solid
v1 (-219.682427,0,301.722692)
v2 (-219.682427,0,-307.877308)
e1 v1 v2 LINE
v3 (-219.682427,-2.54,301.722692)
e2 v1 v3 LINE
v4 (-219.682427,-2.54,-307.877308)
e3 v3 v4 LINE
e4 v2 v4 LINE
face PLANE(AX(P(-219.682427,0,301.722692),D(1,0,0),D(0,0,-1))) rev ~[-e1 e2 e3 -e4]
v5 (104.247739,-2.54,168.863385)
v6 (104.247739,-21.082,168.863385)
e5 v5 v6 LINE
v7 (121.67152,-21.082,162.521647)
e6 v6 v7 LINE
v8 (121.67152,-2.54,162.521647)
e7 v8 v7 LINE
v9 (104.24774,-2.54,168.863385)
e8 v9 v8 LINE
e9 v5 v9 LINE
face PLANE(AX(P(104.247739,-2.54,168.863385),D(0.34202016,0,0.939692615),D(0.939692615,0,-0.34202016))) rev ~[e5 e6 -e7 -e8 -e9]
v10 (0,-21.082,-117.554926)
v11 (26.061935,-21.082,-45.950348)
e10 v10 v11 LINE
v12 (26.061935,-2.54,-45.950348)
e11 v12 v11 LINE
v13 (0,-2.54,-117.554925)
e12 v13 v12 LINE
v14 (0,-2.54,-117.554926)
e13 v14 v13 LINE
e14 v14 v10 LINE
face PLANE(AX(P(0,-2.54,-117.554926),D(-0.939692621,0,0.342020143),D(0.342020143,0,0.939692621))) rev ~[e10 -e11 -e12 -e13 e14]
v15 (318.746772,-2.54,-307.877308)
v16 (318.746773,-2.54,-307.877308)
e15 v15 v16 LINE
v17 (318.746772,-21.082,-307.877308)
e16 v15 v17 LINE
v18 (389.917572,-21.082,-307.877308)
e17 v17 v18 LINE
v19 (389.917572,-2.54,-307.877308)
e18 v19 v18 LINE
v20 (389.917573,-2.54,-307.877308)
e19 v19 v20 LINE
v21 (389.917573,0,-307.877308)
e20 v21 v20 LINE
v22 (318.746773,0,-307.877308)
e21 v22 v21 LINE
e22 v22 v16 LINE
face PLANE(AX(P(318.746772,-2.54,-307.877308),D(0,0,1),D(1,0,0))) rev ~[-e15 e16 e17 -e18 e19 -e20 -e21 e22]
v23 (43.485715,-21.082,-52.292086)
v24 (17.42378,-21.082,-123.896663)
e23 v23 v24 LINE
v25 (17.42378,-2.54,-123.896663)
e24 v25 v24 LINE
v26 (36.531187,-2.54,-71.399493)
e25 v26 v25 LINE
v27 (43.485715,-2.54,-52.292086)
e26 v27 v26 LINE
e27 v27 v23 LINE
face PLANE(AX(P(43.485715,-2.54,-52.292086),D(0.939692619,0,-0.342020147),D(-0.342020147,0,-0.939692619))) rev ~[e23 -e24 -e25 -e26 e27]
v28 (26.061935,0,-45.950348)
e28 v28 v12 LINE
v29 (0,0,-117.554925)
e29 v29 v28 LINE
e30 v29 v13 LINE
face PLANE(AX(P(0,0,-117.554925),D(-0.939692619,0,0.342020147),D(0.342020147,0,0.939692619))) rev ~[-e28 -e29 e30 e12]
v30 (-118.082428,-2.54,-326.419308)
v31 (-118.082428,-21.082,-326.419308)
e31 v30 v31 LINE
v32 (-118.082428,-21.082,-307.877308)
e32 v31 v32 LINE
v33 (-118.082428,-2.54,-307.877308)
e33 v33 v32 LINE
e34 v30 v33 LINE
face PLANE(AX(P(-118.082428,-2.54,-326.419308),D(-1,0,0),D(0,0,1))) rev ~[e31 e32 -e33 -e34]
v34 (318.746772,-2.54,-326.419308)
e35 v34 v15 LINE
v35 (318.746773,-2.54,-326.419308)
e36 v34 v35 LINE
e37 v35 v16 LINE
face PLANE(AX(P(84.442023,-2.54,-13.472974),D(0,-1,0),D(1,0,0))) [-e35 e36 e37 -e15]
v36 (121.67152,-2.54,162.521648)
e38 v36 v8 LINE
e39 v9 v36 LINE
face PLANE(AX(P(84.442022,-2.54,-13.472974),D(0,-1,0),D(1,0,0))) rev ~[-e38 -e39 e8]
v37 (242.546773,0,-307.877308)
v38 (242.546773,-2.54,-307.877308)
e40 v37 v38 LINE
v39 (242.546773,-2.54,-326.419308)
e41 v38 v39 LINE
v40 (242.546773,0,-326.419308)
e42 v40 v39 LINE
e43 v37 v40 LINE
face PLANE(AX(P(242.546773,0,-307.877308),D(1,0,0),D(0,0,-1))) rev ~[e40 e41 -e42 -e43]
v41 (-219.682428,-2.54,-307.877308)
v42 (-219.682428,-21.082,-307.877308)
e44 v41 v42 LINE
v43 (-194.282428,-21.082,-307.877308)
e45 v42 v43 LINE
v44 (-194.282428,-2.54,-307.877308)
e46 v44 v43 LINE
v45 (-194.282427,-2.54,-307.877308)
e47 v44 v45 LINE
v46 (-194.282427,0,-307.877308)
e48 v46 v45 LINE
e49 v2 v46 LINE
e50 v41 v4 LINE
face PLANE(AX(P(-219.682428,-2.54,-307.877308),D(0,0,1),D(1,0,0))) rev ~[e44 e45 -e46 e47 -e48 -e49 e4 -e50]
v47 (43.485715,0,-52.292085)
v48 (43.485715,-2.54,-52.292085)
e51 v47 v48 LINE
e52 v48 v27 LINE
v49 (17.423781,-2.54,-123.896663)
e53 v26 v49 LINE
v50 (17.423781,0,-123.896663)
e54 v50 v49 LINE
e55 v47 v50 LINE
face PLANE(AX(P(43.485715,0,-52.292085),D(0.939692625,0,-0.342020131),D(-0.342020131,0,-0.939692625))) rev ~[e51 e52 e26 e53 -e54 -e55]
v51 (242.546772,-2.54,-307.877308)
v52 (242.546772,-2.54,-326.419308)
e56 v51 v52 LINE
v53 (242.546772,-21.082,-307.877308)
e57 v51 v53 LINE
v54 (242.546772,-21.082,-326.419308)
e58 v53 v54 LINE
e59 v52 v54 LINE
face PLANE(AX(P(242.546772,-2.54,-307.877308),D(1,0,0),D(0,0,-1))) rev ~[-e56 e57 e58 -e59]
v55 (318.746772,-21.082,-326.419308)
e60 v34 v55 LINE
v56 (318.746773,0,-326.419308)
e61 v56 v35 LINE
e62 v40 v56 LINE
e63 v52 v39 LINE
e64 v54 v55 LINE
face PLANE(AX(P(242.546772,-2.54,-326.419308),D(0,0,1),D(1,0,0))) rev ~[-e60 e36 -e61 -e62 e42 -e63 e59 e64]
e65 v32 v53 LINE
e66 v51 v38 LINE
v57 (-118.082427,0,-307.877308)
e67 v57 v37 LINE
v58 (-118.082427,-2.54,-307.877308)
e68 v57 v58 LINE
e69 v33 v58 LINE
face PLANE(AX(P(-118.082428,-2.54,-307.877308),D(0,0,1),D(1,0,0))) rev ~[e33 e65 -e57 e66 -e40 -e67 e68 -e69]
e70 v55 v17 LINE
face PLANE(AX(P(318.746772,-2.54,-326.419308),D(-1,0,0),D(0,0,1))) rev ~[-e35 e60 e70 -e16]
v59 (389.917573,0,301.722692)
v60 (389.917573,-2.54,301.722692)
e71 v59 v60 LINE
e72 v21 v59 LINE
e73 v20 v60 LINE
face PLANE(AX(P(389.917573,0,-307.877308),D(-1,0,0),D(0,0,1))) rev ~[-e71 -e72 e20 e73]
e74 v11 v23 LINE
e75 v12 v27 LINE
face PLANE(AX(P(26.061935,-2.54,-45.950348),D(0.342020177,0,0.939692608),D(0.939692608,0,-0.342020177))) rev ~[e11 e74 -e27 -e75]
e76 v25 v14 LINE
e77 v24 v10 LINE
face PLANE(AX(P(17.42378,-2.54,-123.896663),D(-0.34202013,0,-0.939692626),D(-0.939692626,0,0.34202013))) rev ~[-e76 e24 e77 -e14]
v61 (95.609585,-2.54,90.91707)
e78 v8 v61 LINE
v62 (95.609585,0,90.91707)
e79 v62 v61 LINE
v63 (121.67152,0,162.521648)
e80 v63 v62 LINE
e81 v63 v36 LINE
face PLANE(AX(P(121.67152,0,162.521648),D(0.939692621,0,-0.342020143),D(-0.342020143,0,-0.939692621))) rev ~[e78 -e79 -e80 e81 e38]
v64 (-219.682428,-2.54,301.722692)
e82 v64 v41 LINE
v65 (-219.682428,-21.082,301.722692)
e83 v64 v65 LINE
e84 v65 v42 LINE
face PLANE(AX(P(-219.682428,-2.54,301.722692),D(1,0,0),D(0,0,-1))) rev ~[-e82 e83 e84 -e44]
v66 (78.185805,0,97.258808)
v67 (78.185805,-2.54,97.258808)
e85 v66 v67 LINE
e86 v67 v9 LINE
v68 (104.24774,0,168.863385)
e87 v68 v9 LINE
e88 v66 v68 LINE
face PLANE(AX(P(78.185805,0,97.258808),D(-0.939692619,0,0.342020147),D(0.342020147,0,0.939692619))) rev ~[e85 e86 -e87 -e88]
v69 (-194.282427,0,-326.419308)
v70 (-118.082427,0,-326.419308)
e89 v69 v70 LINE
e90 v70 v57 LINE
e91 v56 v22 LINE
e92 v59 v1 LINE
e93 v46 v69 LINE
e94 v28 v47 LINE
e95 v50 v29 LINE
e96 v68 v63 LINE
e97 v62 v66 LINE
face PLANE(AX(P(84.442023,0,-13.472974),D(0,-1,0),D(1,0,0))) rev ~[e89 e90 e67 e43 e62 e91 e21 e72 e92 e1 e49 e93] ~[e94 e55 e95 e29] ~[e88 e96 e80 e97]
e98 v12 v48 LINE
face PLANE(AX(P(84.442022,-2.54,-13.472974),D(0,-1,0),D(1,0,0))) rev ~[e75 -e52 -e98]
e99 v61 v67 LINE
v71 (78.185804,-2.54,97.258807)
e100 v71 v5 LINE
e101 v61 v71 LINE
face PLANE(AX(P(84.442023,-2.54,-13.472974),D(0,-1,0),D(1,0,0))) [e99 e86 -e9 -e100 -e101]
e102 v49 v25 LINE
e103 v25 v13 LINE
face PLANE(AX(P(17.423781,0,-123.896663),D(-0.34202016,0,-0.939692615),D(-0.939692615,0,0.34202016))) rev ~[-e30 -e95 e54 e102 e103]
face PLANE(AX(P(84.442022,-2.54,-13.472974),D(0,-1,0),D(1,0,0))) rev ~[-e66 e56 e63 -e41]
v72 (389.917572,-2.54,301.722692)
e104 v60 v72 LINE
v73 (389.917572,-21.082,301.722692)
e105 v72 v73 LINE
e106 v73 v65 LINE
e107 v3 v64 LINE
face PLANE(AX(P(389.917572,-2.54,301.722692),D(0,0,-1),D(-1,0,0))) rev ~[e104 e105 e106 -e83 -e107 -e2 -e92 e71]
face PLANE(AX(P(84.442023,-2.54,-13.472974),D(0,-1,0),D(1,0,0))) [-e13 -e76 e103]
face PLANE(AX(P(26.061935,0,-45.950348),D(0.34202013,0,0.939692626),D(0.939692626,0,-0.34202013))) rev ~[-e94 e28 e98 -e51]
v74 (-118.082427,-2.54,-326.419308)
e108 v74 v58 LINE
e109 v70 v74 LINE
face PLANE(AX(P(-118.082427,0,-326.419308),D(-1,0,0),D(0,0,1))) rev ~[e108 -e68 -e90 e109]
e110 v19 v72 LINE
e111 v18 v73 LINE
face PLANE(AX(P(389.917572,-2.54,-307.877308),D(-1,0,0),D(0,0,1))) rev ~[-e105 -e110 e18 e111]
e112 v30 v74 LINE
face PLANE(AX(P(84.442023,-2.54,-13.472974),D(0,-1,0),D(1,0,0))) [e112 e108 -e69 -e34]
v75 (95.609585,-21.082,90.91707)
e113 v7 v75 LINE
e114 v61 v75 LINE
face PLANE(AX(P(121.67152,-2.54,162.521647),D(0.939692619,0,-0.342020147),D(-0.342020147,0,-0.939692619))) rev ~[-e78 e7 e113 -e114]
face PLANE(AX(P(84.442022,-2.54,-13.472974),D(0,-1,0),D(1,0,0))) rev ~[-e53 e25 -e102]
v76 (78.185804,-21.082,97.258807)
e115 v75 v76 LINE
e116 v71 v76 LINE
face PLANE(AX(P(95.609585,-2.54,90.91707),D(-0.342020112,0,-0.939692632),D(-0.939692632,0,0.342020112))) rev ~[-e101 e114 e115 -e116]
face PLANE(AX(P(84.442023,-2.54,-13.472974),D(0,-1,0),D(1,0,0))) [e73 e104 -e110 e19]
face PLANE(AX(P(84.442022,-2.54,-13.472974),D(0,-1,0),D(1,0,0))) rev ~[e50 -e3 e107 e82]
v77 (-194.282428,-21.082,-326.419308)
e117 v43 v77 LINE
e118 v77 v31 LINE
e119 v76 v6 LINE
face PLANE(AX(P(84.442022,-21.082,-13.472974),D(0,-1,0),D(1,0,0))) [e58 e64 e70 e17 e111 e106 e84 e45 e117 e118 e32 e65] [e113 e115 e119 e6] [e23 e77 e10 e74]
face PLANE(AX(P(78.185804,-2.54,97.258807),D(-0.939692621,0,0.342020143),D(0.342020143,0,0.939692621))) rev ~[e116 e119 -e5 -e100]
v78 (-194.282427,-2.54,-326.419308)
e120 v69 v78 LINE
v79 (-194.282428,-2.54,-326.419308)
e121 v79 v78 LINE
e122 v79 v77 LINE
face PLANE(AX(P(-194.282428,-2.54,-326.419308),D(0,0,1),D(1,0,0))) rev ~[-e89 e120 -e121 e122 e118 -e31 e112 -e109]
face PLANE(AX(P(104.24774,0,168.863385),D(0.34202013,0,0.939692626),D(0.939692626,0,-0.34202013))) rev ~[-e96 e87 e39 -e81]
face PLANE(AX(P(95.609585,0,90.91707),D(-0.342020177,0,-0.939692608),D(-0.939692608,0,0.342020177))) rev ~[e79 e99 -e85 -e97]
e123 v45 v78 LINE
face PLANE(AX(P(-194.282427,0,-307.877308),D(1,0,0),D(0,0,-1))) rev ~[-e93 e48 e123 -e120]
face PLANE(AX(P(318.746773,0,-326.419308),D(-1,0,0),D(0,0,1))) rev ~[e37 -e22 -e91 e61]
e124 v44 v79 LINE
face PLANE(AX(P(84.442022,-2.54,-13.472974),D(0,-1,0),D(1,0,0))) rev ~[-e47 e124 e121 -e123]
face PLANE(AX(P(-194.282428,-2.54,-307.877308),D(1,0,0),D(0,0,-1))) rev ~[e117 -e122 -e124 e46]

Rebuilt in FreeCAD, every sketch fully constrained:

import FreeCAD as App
import Part
import Sketcher
from FreeCAD import Vector
Q = App.Units.Quantity


def add_polygon(sketch, points):
    """Adds a closed chain of lines whose ends are joined by coincident constraints."""
    first, n = sketch.GeometryCount, len(points)
    for a, b in zip(points, points[1:] + points[:1]):
        sketch.addGeometry(Part.LineSegment(App.Vector(*a, 0), App.Vector(*b, 0)), False)
    for i in range(n):
        sketch.addConstraint(Sketcher.Constraint("Coincident", first + i, 2, first + (i + 1) % n, 1))

doc = App.newDocument("Part")
params = doc.addObject("Spreadsheet::Sheet", "Params")
for row, (alias, value) in enumerate([
    ("sketch1_width", "24 in"),
    ("sketch1_width2", "1 in"),
    ("sketch1_width3", "3 in"),
    ("sketch1_length", "3 in"),
    ("sketch1_height", "0.73 in"),
    ("pad1_length", "0.1 in"),
    ("sketch2_width", "24 in"),
    ("sketch2_width2", "1 in"),
    ("sketch2_width3", "3 in"),
    ("sketch2_length", "3 in"),
    ("sketch2_height", "0.73 in"),
    ("pad2_length", "0.73 in"),
], start=1):
    params.set(f"A{row}", alias)
    params.set(f"B{row}", "=" + value)
    params.setAlias(f"B{row}", alias)

body = doc.addObject("PartDesign::Body", "Body")

sketch1 = body.newObject("Sketcher::SketchObject", "Sketch")
sketch1.AttachmentSupport = (doc.getObject("XZ_Plane"), [""])
sketch1.MapMode = "FlatFace"
add_polygon(sketch1, [(389.917573, 301.722692), (-219.682427, 301.722692), (-219.682427, -307.877308), (-194.282427, -307.877308), (-194.282427, -326.419308), (-118.082427, -326.419308), (-118.082427, -307.877308), (242.546773, -307.877308), (242.546773, -326.419308), (318.746773, -326.419308), (318.746773, -307.877308), (389.917573, -307.877308)])
add_polygon(sketch1, [(17.423781, -123.896663), (0, -117.554925), (26.061935, -45.950348), (43.485715, -52.292085)])
add_polygon(sketch1, [(121.67152, 162.521648), (95.609585, 90.91707), (78.185805, 97.258808), (104.24774, 168.863385)])
sketch1.addConstraint([
    Sketcher.Constraint("Horizontal", 0),
    Sketcher.Constraint("Vertical", 1),
    Sketcher.Constraint("Horizontal", 2),
    Sketcher.Constraint("Vertical", 3),
    Sketcher.Constraint("Horizontal", 4),
    Sketcher.Constraint("Vertical", 5),
    Sketcher.Constraint("Horizontal", 6),
    Sketcher.Constraint("Vertical", 7),
    Sketcher.Constraint("Horizontal", 8),
    Sketcher.Constraint("Vertical", 9),
    Sketcher.Constraint("Horizontal", 10),
    Sketcher.Constraint("Vertical", 11),
    Sketcher.Constraint("PointOnObject", 12, 2, -2),
    Sketcher.Constraint("Perpendicular", 12, 13),
    Sketcher.Constraint("Perpendicular", 13, 14),
    Sketcher.Constraint("Perpendicular", 14, 15),
    Sketcher.Constraint("Parallel", 15, 16),
    Sketcher.Constraint("Perpendicular", 16, 17),
    Sketcher.Constraint("Perpendicular", 17, 18),
    Sketcher.Constraint("Perpendicular", 18, 19),
    Sketcher.Constraint("Horizontal", 2, 2, 5, 2),
    Sketcher.Constraint("Horizontal", 4, 2, 7, 2),
    Sketcher.Constraint("Horizontal", 6, 2, 9, 2),
    Sketcher.Constraint("Equal", 4, 8),
    Sketcher.Constraint("Equal", 0, 1),
    Sketcher.Constraint("Equal", 15, 16),
    Sketcher.Constraint("Equal", 14, 17),
    Sketcher.Constraint("DistanceX", 0, 2, 0, 1, Q("24 in")),
    Sketcher.Constraint("DistanceX", 2, 1, 2, 2, Q("1 in")),
    Sketcher.Constraint("DistanceX", 4, 1, 4, 2, Q("3 in")),
    Sketcher.Constraint("Distance", 13, Q("3 in")),
    Sketcher.Constraint("Angle", 12, Q("159.999999 deg")),
    Sketcher.Constraint("DistanceY", 3, 2, 3, 1, Q("0.73 in")),
    Sketcher.Constraint("Distance", 12, Q("0.73 in")),
    Sketcher.Constraint("DistanceX", 6, 1, 6, 2, Q("14.198 in")),
    Sketcher.Constraint("DistanceY", -1, 1, 0, 2, 301.722692),
    Sketcher.Constraint("DistanceY", -1, 1, 16, 2, 90.91707),
    Sketcher.Constraint("DistanceX", -1, 1, 18, 2, 104.24774),
    Sketcher.Constraint("DistanceX", 5, 2, 13, 2, 144.144362),
    Sketcher.Constraint("DistanceY", 5, 2, 13, 2, 261.92696),
])
sketch1.setExpression("Constraints[47]", "Params.sketch1_width")
sketch1.setExpression("Constraints[48]", "Params.sketch1_width2")
sketch1.setExpression("Constraints[49]", "Params.sketch1_width3")
sketch1.setExpression("Constraints[50]", "Params.sketch1_length")
sketch1.setExpression("Constraints[52]", "Params.sketch1_height")
pad1 = body.newObject("PartDesign::Pad", "Pad")
pad1.Profile = sketch1
pad1.setExpression("Length", "Params.pad1_length")

sketch2 = body.newObject("Sketcher::SketchObject", "Sketch001")
sketch2.AttachmentSupport = (doc.getObject("XZ_Plane"), [""])
sketch2.MapMode = "FlatFace"
sketch2.AttachmentOffset = App.Placement(Vector(0, 0, 0.1 * 25.4), App.Rotation())
add_polygon(sketch2, [(389.917572, 301.722692), (-219.682428, 301.722692), (-219.682428, -307.877308), (-194.282428, -307.877308), (-194.282428, -326.419308), (-118.082428, -326.419308), (-118.082428, -307.877308), (242.546772, -307.877308), (242.546772, -326.419308), (318.746772, -326.419308), (318.746772, -307.877308), (389.917572, -307.877308)])
add_polygon(sketch2, [(43.485715, -52.292086), (17.42378, -123.896663), (0, -117.554926), (26.061935, -45.950348)])
add_polygon(sketch2, [(104.247739, 168.863385), (121.67152, 162.521647), (95.609585, 90.91707), (78.185804, 97.258807)])
sketch2.addConstraint([
    Sketcher.Constraint("Horizontal", 0),
    Sketcher.Constraint("Vertical", 1),
    Sketcher.Constraint("Horizontal", 2),
    Sketcher.Constraint("Vertical", 3),
    Sketcher.Constraint("Horizontal", 4),
    Sketcher.Constraint("Vertical", 5),
    Sketcher.Constraint("Horizontal", 6),
    Sketcher.Constraint("Vertical", 7),
    Sketcher.Constraint("Horizontal", 8),
    Sketcher.Constraint("Vertical", 9),
    Sketcher.Constraint("Horizontal", 10),
    Sketcher.Constraint("Vertical", 11),
    Sketcher.Constraint("PointOnObject", 13, 2, -2),
    Sketcher.Constraint("Perpendicular", 12, 13),
    Sketcher.Constraint("Perpendicular", 13, 14),
    Sketcher.Constraint("Perpendicular", 14, 15),
    Sketcher.Constraint("Parallel", 15, 16),
    Sketcher.Constraint("Perpendicular", 16, 17),
    Sketcher.Constraint("Perpendicular", 17, 18),
    Sketcher.Constraint("Perpendicular", 18, 19),
    Sketcher.Constraint("Horizontal", 2, 2, 5, 2),
    Sketcher.Constraint("Horizontal", 4, 2, 7, 2),
    Sketcher.Constraint("Horizontal", 6, 2, 9, 2),
    Sketcher.Constraint("Equal", 4, 8),
    Sketcher.Constraint("Equal", 0, 1),
    Sketcher.Constraint("Equal", 15, 16),
    Sketcher.Constraint("Equal", 14, 17),
    Sketcher.Constraint("DistanceX", 0, 2, 0, 1, Q("24 in")),
    Sketcher.Constraint("DistanceX", 2, 1, 2, 2, Q("1 in")),
    Sketcher.Constraint("DistanceX", 4, 1, 4, 2, Q("3 in")),
    Sketcher.Constraint("Distance", 12, Q("3 in")),
    Sketcher.Constraint("Angle", 12, Q("-110 deg")),
    Sketcher.Constraint("DistanceY", 3, 2, 3, 1, Q("0.73 in")),
    Sketcher.Constraint("Distance", 13, Q("0.73 in")),
    Sketcher.Constraint("DistanceX", 6, 1, 6, 2, Q("14.198 in")),
    Sketcher.Constraint("DistanceY", -1, 1, 0, 2, 301.722692),
    Sketcher.Constraint("DistanceX", 2, 2, -1, 1, 194.282428),
    Sketcher.Constraint("DistanceX", -1, 1, 16, 2, 121.67152),
    Sketcher.Constraint("DistanceY", -1, 1, 17, 2, 90.91707),
    Sketcher.Constraint("DistanceY", 4, 2, 13, 2, 208.864382),
])
sketch2.setExpression("Constraints[47]", "Params.sketch2_width")
sketch2.setExpression("Constraints[48]", "Params.sketch2_width2")
sketch2.setExpression("Constraints[49]", "Params.sketch2_width3")
sketch2.setExpression("Constraints[50]", "Params.sketch2_length")
sketch2.setExpression("Constraints[52]", "Params.sketch2_height")
pad2 = body.newObject("PartDesign::Pad", "Pad001")
pad2.Profile = sketch2
pad2.setExpression("Length", "Params.pad2_length")

doc.recompute()
